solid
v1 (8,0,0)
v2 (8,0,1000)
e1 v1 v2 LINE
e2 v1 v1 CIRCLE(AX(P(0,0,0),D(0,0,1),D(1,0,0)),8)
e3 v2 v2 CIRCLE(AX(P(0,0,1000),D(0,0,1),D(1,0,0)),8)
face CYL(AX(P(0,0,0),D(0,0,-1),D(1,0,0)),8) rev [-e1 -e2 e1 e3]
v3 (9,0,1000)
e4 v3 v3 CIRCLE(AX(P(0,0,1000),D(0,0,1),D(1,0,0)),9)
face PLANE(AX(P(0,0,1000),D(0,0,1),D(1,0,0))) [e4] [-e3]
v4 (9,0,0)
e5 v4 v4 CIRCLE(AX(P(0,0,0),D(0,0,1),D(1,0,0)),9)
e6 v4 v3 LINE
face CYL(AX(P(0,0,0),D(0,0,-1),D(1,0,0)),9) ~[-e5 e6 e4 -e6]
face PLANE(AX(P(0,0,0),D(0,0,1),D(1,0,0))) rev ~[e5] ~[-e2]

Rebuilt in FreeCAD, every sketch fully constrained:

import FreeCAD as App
import Part
import Sketcher
from FreeCAD import Vector
Q = App.Units.Quantity

doc = App.newDocument("Part")
body = doc.addObject("PartDesign::Body", "Body")

sketch1 = body.newObject("Sketcher::SketchObject", "Sketch")
sketch1.AttachmentSupport = (doc.getObject("XY_Plane"), [""])
sketch1.MapMode = "FlatFace"
sketch1.addGeometry([
    Part.Circle(Vector(0, 0, 0), Vector(0, 0, 1), 9),
    Part.Circle(Vector(0, 0, 0), Vector(0, 0, 1), 8),
], False)
sketch1.addConstraint([
    Sketcher.Constraint("Coincident", 0, 3, -1, 1),
    Sketcher.Constraint("Coincident", 1, 3, -1, 1),
    Sketcher.Constraint("Diameter", 0, Q("18 mm")),
    Sketcher.Constraint("Diameter", 1, Q("16 mm")),
])
pad1 = body.newObject("PartDesign::Pad", "Pad")
pad1.Profile = sketch1
pad1.Length = 1000

doc.recompute()
